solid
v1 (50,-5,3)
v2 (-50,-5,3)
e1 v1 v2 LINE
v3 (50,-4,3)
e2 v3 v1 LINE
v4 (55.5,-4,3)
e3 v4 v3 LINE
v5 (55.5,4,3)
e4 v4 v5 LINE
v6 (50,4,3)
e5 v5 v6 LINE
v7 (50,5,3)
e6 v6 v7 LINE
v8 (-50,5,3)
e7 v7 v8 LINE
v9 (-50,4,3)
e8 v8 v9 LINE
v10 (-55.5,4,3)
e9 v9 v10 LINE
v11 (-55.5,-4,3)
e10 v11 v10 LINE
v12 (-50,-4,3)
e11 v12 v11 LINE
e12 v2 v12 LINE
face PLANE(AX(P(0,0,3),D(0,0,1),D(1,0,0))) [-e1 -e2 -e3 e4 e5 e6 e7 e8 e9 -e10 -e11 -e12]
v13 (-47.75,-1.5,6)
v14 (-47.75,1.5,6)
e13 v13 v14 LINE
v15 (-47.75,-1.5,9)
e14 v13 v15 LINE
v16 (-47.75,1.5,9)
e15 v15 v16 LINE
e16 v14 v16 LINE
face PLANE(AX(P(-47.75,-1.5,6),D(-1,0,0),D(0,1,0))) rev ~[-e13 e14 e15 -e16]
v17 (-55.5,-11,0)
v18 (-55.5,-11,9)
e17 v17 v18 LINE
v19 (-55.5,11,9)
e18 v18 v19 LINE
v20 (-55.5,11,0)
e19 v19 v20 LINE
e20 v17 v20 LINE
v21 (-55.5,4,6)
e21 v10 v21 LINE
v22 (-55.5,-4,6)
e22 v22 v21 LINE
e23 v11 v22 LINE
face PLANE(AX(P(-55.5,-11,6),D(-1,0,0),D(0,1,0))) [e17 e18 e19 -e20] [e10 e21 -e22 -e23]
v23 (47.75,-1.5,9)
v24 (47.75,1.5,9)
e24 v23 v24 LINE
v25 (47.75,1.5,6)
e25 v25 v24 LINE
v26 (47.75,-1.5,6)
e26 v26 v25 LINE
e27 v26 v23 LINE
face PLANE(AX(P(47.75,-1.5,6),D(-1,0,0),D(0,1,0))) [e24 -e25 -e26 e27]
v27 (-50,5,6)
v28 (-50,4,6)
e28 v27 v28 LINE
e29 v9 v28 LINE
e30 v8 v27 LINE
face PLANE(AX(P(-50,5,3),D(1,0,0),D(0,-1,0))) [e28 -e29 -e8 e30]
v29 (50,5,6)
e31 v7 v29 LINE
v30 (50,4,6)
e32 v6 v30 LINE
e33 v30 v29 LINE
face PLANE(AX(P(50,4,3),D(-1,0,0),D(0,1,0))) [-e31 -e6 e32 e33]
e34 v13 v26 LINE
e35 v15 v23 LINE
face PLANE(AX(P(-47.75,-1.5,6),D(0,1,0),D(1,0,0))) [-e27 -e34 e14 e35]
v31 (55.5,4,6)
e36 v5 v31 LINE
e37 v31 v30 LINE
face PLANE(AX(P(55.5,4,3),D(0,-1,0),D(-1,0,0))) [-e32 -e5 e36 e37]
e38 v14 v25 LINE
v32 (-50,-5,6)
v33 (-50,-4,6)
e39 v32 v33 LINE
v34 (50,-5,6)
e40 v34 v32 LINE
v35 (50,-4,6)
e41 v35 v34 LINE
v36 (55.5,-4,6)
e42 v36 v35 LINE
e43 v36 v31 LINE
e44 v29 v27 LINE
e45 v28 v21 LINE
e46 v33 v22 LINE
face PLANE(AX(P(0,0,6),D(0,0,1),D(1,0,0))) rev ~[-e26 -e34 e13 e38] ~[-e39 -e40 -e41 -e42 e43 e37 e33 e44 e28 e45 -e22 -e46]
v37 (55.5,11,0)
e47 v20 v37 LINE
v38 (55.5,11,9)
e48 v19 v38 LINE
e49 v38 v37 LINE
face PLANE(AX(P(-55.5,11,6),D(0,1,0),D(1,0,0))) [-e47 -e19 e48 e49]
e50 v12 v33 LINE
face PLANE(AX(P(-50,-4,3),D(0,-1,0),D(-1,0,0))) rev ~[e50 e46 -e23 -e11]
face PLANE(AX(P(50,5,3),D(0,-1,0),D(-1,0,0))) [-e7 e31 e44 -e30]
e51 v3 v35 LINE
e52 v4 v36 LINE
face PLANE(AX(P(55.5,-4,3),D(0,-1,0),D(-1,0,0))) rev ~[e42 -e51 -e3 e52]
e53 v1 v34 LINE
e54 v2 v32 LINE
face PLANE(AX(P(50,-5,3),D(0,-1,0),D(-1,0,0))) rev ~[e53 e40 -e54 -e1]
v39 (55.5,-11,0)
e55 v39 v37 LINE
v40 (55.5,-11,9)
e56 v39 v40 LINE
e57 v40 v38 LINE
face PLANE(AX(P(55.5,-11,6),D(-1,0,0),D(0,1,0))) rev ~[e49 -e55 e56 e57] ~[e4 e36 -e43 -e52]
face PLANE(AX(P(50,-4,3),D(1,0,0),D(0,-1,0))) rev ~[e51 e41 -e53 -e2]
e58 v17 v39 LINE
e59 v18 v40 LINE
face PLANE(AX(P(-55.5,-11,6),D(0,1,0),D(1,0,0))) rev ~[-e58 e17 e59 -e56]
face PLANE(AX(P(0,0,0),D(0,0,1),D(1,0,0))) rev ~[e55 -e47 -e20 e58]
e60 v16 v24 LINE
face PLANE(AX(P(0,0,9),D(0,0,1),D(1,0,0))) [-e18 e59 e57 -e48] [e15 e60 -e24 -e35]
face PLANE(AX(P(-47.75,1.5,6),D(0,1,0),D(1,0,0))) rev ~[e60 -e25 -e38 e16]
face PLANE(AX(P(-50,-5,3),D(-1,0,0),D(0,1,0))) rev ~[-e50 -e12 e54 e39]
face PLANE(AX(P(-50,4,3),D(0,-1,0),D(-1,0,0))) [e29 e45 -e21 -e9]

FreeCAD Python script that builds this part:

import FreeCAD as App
import Part
import Sketcher

V = App.Vector

doc = App.newDocument("Part")
body = doc.addObject("PartDesign::Body", "Body")

# Sketch on XY plane
sketch1 = doc.addObject("Sketcher::SketchObject", "Sketch")
body.addObject(sketch1)
sketch1.AttachmentSupport = (doc.XY_Plane, [""])
sketch1.MapMode = "FlatFace"
sketch1.addGeometry([
    Part.LineSegment(V(-55.5, 11, 0), V(-55.5, -11, 0)),
    Part.LineSegment(V(-55.5, -11, 0), V(55.5, -11, 0)),
    Part.LineSegment(V(55.5, -11, 0), V(55.5, 11, 0)),
    Part.LineSegment(V(55.5, 11, 0), V(-55.5, 11, 0)),
], False)
sketch1.addConstraint([
    Sketcher.Constraint("Coincident", 0, 2, 1, 1),
    Sketcher.Constraint("Coincident", 1, 2, 2, 1),
    Sketcher.Constraint("Coincident", 2, 2, 3, 1),
    Sketcher.Constraint("Coincident", 3, 2, 0, 1),
    Sketcher.Constraint("Vertical", 0),
    Sketcher.Constraint("Horizontal", 1),
    Sketcher.Constraint("Vertical", 2),
    Sketcher.Constraint("Horizontal", 3),
    Sketcher.Constraint("Symmetric", 0, 2, 2, 2, -1, 1),
    Sketcher.Constraint("DistanceX", 1, 1, 1, 2, 111.0),
    Sketcher.Constraint("DistanceY", 0, 2, 0, 1, 22.0),
])
pad1 = doc.addObject("PartDesign::Pad", "Pad")
body.addObject(pad1)
pad1.Profile = sketch1
pad1.Length = 3

# Sketch on XY plane
sketch2 = doc.addObject("Sketcher::SketchObject", "Sketch001")
body.addObject(sketch2)
sketch2.AttachmentSupport = (doc.XY_Plane, [""])
sketch2.MapMode = "FlatFace"
sketch2.AttachmentOffset = App.Placement(V(0, 0, 3), App.Rotation())
sketch2.addGeometry([
    Part.LineSegment(V(55.5, 11, 0), V(-55.5, 11, 0)),  # 0
    Part.LineSegment(V(-55.5, 11, 0), V(-55.5, 4, 0)),  # 1
    Part.LineSegment(V(-55.5, 4, 0), V(-50, 4, 0)),  # 2
    Part.LineSegment(V(-50, 4, 0), V(-50, 5, 0)),  # 3
    Part.LineSegment(V(-50, 5, 0), V(50, 5, 0)),  # 4
    Part.LineSegment(V(50, 5, 0), V(50, 4, 0)),  # 5
    Part.LineSegment(V(50, 4, 0), V(55.5, 4, 0)),  # 6
    Part.LineSegment(V(55.5, 4, 0), V(55.5, 11, 0)),  # 7
    Part.LineSegment(V(-55.5, -11, 0), V(55.5, -11, 0)),  # 8
    Part.LineSegment(V(55.5, -11, 0), V(55.5, -4, 0)),  # 9
    Part.LineSegment(V(55.5, -4, 0), V(50, -4, 0)),  # 10
    Part.LineSegment(V(50, -4, 0), V(50, -5, 0)),  # 11
    Part.LineSegment(V(50, -5, 0), V(-50, -5, 0)),  # 12
    Part.LineSegment(V(-50, -5, 0), V(-50, -4, 0)),  # 13
    Part.LineSegment(V(-50, -4, 0), V(-55.5, -4, 0)),  # 14
    Part.LineSegment(V(-55.5, -4, 0), V(-55.5, -11, 0)),  # 15
], False)
sketch2.addConstraint([
    Sketcher.Constraint("Coincident", 0, 2, 1, 1),
    Sketcher.Constraint("Coincident", 1, 2, 2, 1),
    Sketcher.Constraint("Coincident", 2, 2, 3, 1),
    Sketcher.Constraint("Coincident", 3, 2, 4, 1),
    Sketcher.Constraint("Coincident", 4, 2, 5, 1),
    Sketcher.Constraint("Coincident", 5, 2, 6, 1),
    Sketcher.Constraint("Coincident", 6, 2, 7, 1),
    Sketcher.Constraint("Coincident", 7, 2, 0, 1),
    Sketcher.Constraint("Coincident", 8, 2, 9, 1),
    Sketcher.Constraint("Coincident", 9, 2, 10, 1),
    Sketcher.Constraint("Coincident", 10, 2, 11, 1),
    Sketcher.Constraint("Coincident", 11, 2, 12, 1),
    Sketcher.Constraint("Coincident", 12, 2, 13, 1),
    Sketcher.Constraint("Coincident", 13, 2, 14, 1),
    Sketcher.Constraint("Coincident", 14, 2, 15, 1),
    Sketcher.Constraint("Coincident", 15, 2, 8, 1),
    Sketcher.Constraint("Horizontal", 0),
    Sketcher.Constraint("Vertical", 1),
    Sketcher.Constraint("Horizontal", 2),
    Sketcher.Constraint("Vertical", 3),
    Sketcher.Constraint("Horizontal", 4),
    Sketcher.Constraint("Vertical", 5),
    Sketcher.Constraint("Horizontal", 6),
    Sketcher.Constraint("Vertical", 7),
    Sketcher.Constraint("Horizontal", 8),
    Sketcher.Constraint("Vertical", 9),
    Sketcher.Constraint("Horizontal", 10),
    Sketcher.Constraint("Vertical", 11),
    Sketcher.Constraint("Horizontal", 12),
    Sketcher.Constraint("Vertical", 13),
    Sketcher.Constraint("Horizontal", 14),
    Sketcher.Constraint("Vertical", 15),
    Sketcher.Constraint("Symmetric", 0, 2, 8, 2, -1, 1),
    Sketcher.Constraint("Symmetric", 2, 2, 10, 2, -1, 1),
    Sketcher.Constraint("Symmetric", 4, 2, 12, 2, -1, 1),
    Sketcher.Constraint("Symmetric", 6, 2, 14, 2, -1, 1),
    Sketcher.Constraint("Symmetric", 2, 2, 5, 2, -2),
    Sketcher.Constraint("Vertical", 7, 2, 8, 2),
    Sketcher.Constraint("DistanceX", 0, 2, 0, 1, 111.0),
    Sketcher.Constraint("DistanceX", 4, 1, 4, 2, 100.0),
    Sketcher.Constraint("DistanceY", 1, 2, 1, 1, 7.0),
    Sketcher.Constraint("DistanceY", 3, 1, 3, 2, 1.0),
    Sketcher.Constraint("DistanceY", -1, 1, 0, 2, 11.0),
])
pad2 = doc.addObject("PartDesign::Pad", "Pad001")
body.addObject(pad2)
pad2.Profile = sketch2
pad2.Length = 3

# Sketch on XY plane
sketch3 = doc.addObject("Sketcher::SketchObject", "Sketch002")
body.addObject(sketch3)
sketch3.AttachmentSupport = (doc.XY_Plane, [""])
sketch3.MapMode = "FlatFace"
sketch3.AttachmentOffset = App.Placement(V(0, 0, 6), App.Rotation())
sketch3.addGeometry([
    Part.LineSegment(V(-55.5, 11, 0), V(-55.5, -11, 0)),  # 0
    Part.LineSegment(V(-55.5, -11, 0), V(55.5, -11, 0)),  # 1
    Part.LineSegment(V(55.5, -11, 0), V(55.5, 11, 0)),  # 2
    Part.LineSegment(V(55.5, 11, 0), V(-55.5, 11, 0)),  # 3
    Part.LineSegment(V(47.75, -1.5, 0), V(-47.75, -1.5, 0)),  # 4
    Part.LineSegment(V(-47.75, -1.5, 0), V(-47.75, 1.5, 0)),  # 5
    Part.LineSegment(V(-47.75, 1.5, 0), V(47.75, 1.5, 0)),  # 6
    Part.LineSegment(V(47.75, 1.5, 0), V(47.75, -1.5, 0)),  # 7
], False)
sketch3.addConstraint([
    Sketcher.Constraint("Coincident", 0, 2, 1, 1),
    Sketcher.Constraint("Coincident", 1, 2, 2, 1),
    Sketcher.Constraint("Coincident", 2, 2, 3, 1),
    Sketcher.Constraint("Coincident", 3, 2, 0, 1),
    Sketcher.Constraint("Coincident", 4, 2, 5, 1),
    Sketcher.Constraint("Coincident", 5, 2, 6, 1),
    Sketcher.Constraint("Coincident", 6, 2, 7, 1),
    Sketcher.Constraint("Coincident", 7, 2, 4, 1),
    Sketcher.Constraint("Vertical", 0),
    Sketcher.Constraint("Horizontal", 1),
    Sketcher.Constraint("Vertical", 2),
    Sketcher.Constraint("Horizontal", 3),
    Sketcher.Constraint("Horizontal", 4),
    Sketcher.Constraint("Vertical", 5),
    Sketcher.Constraint("Horizontal", 6),
    Sketcher.Constraint("Vertical", 7),
    Sketcher.Constraint("Symmetric", 0, 2, 2, 2, -1, 1),
    Sketcher.Constraint("Symmetric", 4, 2, 6, 2, -1, 1),
    Sketcher.Constraint("DistanceX", 1, 1, 1, 2, 111.0),
    Sketcher.Constraint("DistanceY", 0, 2, 0, 1, 22.0),
    Sketcher.Constraint("DistanceY", 5, 1, 5, 2, 3.0),
    Sketcher.Constraint("DistanceX", 4, 2, 4, 1, 95.5),
])
pad3 = doc.addObject("PartDesign::Pad", "Pad002")
body.addObject(pad3)
pad3.Profile = sketch3
pad3.Length = 3

doc.recompute()
